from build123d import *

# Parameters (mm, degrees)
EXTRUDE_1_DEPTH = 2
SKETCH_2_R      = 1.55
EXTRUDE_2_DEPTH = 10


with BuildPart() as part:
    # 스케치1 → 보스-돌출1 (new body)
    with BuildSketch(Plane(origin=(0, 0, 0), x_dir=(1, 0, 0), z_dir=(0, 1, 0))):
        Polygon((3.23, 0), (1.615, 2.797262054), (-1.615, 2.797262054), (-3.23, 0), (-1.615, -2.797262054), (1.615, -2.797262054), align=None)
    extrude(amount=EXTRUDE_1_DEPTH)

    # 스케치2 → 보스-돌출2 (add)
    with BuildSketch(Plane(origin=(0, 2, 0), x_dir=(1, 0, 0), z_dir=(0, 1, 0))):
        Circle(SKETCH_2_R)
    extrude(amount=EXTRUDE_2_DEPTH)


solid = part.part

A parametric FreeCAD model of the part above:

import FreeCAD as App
import Part
import Sketcher
Q = App.Units.Quantity


def add_polygon(sketch, points):
    """Adds a closed chain of lines whose ends are joined by coincident constraints."""
    first, n = sketch.GeometryCount, len(points)
    for a, b in zip(points, points[1:] + points[:1]):
        sketch.addGeometry(Part.LineSegment(App.Vector(*a, 0), App.Vector(*b, 0)), False)
    for i in range(n):
        sketch.addConstraint(Sketcher.Constraint("Coincident", first + i, 2, first + (i + 1) % n, 1))

doc = App.newDocument("Part")
params = doc.addObject("Spreadsheet::Sheet", "Params")
for row, (alias, value) in enumerate([
    ("sketch1_width", "3.23 mm"),
    ("sketch1_length", "3.23 mm"),
    ("pad1_length", "2 mm"),
    ("sketch2_diameter", "3.1 mm"),
    ("pad2_length", "10 mm"),
], start=1):
    params.set(f"A{row}", alias)
    params.set(f"B{row}", "=" + value)
    params.setAlias(f"B{row}", alias)

body = doc.addObject("PartDesign::Body", "Body")

sketch1 = body.newObject("Sketcher::SketchObject", "Sketch")
sketch1.AttachmentSupport = (doc.getObject("XZ_Plane"), [""])
sketch1.MapMode = "FlatFace"
add_polygon(sketch1, [(3.2, 0), (1.6, -2.8), (-1.6, -2.8), (-3.2, 0), (-1.6, 2.8), (1.6, 2.8)])
sketch1.addConstraint([
    Sketcher.Constraint("Horizontal", 1),
    Sketcher.Constraint("Horizontal", 4),
    Sketcher.Constraint("Symmetric", 0, 2, 3, 2, -1, 1),
    Sketcher.Constraint("Symmetric", 2, 2, 5, 2, -1, 1),
    Sketcher.Constraint("PointOnObject", 2, 2, -1),
    Sketcher.Constraint("Parallel", 2, 5),
    Sketcher.Constraint("Vertical", 1, 2, 3, 2),
    Sketcher.Constraint("Angle", 0, Q("-120 deg")),
    Sketcher.Constraint("DistanceX", 1, 2, 1, 1, 3.23),
    Sketcher.Constraint("Distance", 0, 3.23),
])
sketch1.setExpression("Constraints[14]", "Params.sketch1_width")
sketch1.setExpression("Constraints[15]", "Params.sketch1_length")
pad1 = body.newObject("PartDesign::Pad", "Pad")
pad1.Profile = sketch1
pad1.setExpression("Length", "Params.pad1_length")
pad1.Reversed = True

sketch2 = body.newObject("Sketcher::SketchObject", "Sketch001")
sketch2.AttachmentSupport = (doc.getObject("XZ_Plane"), [""])
sketch2.MapMode = "FlatFace"
sketch2.AttachmentOffset = App.Placement(App.Vector(0, 0, -2), App.Rotation())
sketch2.addGeometry(Part.Circle(App.Vector(0, 0, 0), App.Vector(0, 0, 1), 1.6), False)
sketch2.addConstraint([
    Sketcher.Constraint("Coincident", 0, 3, -1, 1),
    Sketcher.Constraint("Diameter", 0, 3.1),
])
sketch2.setExpression("Constraints[1]", "Params.sketch2_diameter")
pad2 = body.newObject("PartDesign::Pad", "Pad001")
pad2.Profile = sketch2
pad2.setExpression("Length", "Params.pad2_length")
pad2.Reversed = True

doc.recompute()
